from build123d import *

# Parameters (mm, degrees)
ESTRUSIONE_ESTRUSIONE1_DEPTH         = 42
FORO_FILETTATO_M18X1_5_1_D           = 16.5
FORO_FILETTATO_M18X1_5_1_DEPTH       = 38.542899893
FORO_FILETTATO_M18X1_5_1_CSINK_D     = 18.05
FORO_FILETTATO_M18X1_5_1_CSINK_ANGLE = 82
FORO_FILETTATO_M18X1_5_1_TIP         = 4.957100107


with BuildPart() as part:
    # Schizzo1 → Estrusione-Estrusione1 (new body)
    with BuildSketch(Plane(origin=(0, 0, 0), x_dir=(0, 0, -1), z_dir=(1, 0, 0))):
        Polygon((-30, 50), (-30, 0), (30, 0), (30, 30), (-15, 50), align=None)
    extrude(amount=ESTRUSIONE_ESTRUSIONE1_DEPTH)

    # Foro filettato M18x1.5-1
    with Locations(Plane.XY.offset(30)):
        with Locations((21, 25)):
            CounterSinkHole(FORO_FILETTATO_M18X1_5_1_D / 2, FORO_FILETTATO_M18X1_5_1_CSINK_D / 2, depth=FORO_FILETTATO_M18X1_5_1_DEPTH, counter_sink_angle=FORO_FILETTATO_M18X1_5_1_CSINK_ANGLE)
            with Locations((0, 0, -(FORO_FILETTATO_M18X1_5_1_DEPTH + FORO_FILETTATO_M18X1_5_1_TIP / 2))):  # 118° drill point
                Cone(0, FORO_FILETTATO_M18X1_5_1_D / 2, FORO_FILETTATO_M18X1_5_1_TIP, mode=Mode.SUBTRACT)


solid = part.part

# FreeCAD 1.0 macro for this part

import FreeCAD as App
import Part
import Sketcher
from FreeCAD import Vector
Q = App.Units.Quantity


def add_polygon(sketch, points):
    """Adds a closed chain of lines whose ends are joined by coincident constraints."""
    first, n = sketch.GeometryCount, len(points)
    for a, b in zip(points, points[1:] + points[:1]):
        sketch.addGeometry(Part.LineSegment(App.Vector(*a, 0), App.Vector(*b, 0)), False)
    for i in range(n):
        sketch.addConstraint(Sketcher.Constraint("Coincident", first + i, 2, first + (i + 1) % n, 1))

doc = App.newDocument("Part")
body = doc.addObject("PartDesign::Body", "Body")

# Sketch on YZ plane
sketch1 = body.newObject("Sketcher::SketchObject", "Sketch")
sketch1.AttachmentSupport = (doc.getObject("YZ_Plane"), [""])
sketch1.MapMode = "FlatFace"
add_polygon(sketch1, [(50, 30), (0, 30), (0, -30), (30, -30), (50, 15)])  # lines 0-4
sketch1.addConstraint([
    Sketcher.Constraint("Horizontal", 0),
    Sketcher.Constraint("Vertical", 1),
    Sketcher.Constraint("Horizontal", 2),
    Sketcher.Constraint("Vertical", 4),
    Sketcher.Constraint("Symmetric", 0, 2, 1, 2, -1, 1),
    Sketcher.Constraint("DistanceX", 0, 2, 0, 1, Q("50 mm")),
    Sketcher.Constraint("DistanceX", 2, 1, 2, 2, Q("30 mm")),
    Sketcher.Constraint("DistanceY", 1, 2, 1, 1, Q("60 mm")),
    Sketcher.Constraint("DistanceY", 4, 1, 4, 2, Q("15 mm")),
])
pad1 = body.newObject("PartDesign::Pad", "Pad")
pad1.Profile = sketch1
pad1.Length = 42

# Sketch on XY plane
sketch2 = body.newObject("Sketcher::SketchObject", "Sketch001")
sketch2.AttachmentSupport = (doc.getObject("XY_Plane"), [""])
sketch2.MapMode = "FlatFace"
sketch2.AttachmentOffset = App.Placement(Vector(0, 0, 30), App.Rotation())
sketch2.addGeometry(Part.Circle(Vector(21, 25, 0), Vector(0, 0, 1), 8), False)
sketch2.addConstraint([
    Sketcher.Constraint("Diameter", 0, Q("16.5 mm")),
    Sketcher.Constraint("DistanceX", -1, 1, 0, 3, Q("21 mm")),
    Sketcher.Constraint("DistanceY", -1, 1, 0, 3, Q("25 mm")),
])
doc.recompute()
hole = body.newObject("PartDesign::Hole", "Hole")
hole.Profile = sketch2
hole.ThreadType = "None"
hole.Diameter = 16.5
hole.DepthType = "Dimension"
hole.Depth = 38.5429
hole.DrillPoint = "Angled"
hole.DrillPointAngle = 118
hole.HoleCutType = "Countersink"
hole.HoleCutDiameter = 18.05
hole.HoleCutCountersinkAngle = 82

doc.recompute()
